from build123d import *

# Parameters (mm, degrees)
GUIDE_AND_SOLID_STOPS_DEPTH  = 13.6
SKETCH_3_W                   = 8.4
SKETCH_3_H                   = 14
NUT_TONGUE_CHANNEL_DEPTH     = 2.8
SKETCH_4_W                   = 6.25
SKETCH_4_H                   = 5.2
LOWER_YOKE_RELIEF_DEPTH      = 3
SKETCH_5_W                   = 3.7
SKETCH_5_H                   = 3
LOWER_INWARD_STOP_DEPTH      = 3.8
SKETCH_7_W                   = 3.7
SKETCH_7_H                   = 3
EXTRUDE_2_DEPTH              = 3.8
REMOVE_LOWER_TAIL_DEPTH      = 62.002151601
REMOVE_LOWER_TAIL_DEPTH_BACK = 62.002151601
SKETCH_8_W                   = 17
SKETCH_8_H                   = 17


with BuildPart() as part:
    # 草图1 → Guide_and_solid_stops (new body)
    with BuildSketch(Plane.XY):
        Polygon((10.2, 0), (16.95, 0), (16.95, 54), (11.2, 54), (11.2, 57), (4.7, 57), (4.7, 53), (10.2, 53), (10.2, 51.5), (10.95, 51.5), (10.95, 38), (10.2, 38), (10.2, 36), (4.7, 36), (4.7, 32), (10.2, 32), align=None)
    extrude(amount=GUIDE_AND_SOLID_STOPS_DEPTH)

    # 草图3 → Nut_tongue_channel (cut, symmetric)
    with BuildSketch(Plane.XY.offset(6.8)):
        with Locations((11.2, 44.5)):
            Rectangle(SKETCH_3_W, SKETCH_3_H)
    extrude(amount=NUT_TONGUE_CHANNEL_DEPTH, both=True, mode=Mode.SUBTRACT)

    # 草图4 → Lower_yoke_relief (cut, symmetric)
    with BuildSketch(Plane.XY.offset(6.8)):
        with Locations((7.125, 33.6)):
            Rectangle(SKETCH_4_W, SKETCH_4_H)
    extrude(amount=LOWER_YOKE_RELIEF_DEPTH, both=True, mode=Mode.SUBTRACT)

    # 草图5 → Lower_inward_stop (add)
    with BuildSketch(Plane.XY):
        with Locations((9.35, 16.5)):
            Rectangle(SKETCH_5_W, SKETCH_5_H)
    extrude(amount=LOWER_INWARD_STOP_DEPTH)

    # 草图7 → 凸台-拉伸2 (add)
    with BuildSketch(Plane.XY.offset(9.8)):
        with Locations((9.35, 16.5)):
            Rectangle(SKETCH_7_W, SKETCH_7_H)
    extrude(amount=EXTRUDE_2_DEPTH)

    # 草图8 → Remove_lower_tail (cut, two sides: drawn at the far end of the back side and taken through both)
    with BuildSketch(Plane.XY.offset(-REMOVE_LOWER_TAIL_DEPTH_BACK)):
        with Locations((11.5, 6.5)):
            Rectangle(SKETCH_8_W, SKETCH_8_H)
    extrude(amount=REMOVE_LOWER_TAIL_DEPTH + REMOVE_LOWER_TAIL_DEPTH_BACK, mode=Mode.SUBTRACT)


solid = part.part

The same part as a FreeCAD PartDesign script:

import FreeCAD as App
import Part
import Sketcher
from FreeCAD import Vector
Q = App.Units.Quantity


def add_polygon(sketch, points):
    """Adds a closed chain of lines whose ends are joined by coincident constraints."""
    first, n = sketch.GeometryCount, len(points)
    for a, b in zip(points, points[1:] + points[:1]):
        sketch.addGeometry(Part.LineSegment(App.Vector(*a, 0), App.Vector(*b, 0)), False)
    for i in range(n):
        sketch.addConstraint(Sketcher.Constraint("Coincident", first + i, 2, first + (i + 1) % n, 1))

doc = App.newDocument("Part")
body = doc.addObject("PartDesign::Body", "Body")

sketch1 = body.newObject("Sketcher::SketchObject", "Sketch")
sketch1.AttachmentSupport = (doc.getObject("XY_Plane"), [""])
sketch1.MapMode = "FlatFace"
add_polygon(sketch1, [(10.2, 0), (16.9, 0), (16.9, 54), (11.2, 54), (11.2, 57), (4.7, 57), (4.7, 53), (10.2, 53), (10.2, 51.5), (10.9, 51.5), (10.9, 38), (10.2, 38), (10.2, 36), (4.7, 36), (4.7, 32), (10.2, 32)])
sketch1.addConstraint(Sketcher.Constraint("Horizontal", 0))
sketch1.addConstraint(Sketcher.Constraint("Vertical", 1))
sketch1.addConstraint(Sketcher.Constraint("Horizontal", 2))
sketch1.addConstraint(Sketcher.Constraint("Vertical", 3))
sketch1.addConstraint(Sketcher.Constraint("Horizontal", 4))
sketch1.addConstraint(Sketcher.Constraint("Vertical", 5))
sketch1.addConstraint(Sketcher.Constraint("Horizontal", 6))
sketch1.addConstraint(Sketcher.Constraint("Vertical", 7))
sketch1.addConstraint(Sketcher.Constraint("Horizontal", 8))
sketch1.addConstraint(Sketcher.Constraint("Vertical", 9))
sketch1.addConstraint(Sketcher.Constraint("Horizontal", 10))
sketch1.addConstraint(Sketcher.Constraint("Vertical", 11))
sketch1.addConstraint(Sketcher.Constraint("Horizontal", 12))
sketch1.addConstraint(Sketcher.Constraint("Vertical", 13))
sketch1.addConstraint(Sketcher.Constraint("Horizontal", 14))
sketch1.addConstraint(Sketcher.Constraint("Vertical", 15))
sketch1.addConstraint(Sketcher.Constraint("PointOnObject", 0, 2, -1))
sketch1.addConstraint(Sketcher.Constraint("Vertical", 7, 2, 10, 2))
sketch1.addConstraint(Sketcher.Constraint("Vertical", 5, 2, 12, 2))
sketch1.addConstraint(Sketcher.Constraint("Vertical", 11, 2, 14, 2))
sketch1.addConstraint(Sketcher.Constraint("Equal", 5, 13))
sketch1.addConstraint(Sketcher.Constraint("DistanceY", 1, 1, 1, 2, Q("54 mm")))
sketch1.addConstraint(Sketcher.Constraint("DistanceY", 3, 1, 3, 2, Q("3 mm")))
sketch1.addConstraint(Sketcher.Constraint("DistanceY", 5, 2, 5, 1, Q("4 mm")))
sketch1.addConstraint(Sketcher.Constraint("DistanceY", 11, 2, 11, 1, Q("2 mm")))
sketch1.addConstraint(Sketcher.Constraint("DistanceY", 15, 2, 15, 1, Q("32 mm")))
sketch1.addConstraint(Sketcher.Constraint("DistanceX", 4, 2, 4, 1, Q("6.5 mm")))
sketch1.addConstraint(Sketcher.Constraint("DistanceX", 6, 1, 6, 2, Q("5.5 mm")))
sketch1.addConstraint(Sketcher.Constraint("DistanceY", 7, 2, 7, 1, Q("1.5 mm")))
sketch1.addConstraint(Sketcher.Constraint("DistanceX", 0, 1, 0, 2, Q("6.75 mm")))
sketch1.addConstraint(Sketcher.Constraint("DistanceX", 8, 1, 8, 2, Q("0.75 mm")))
sketch1.addConstraint(Sketcher.Constraint("DistanceX", -1, 1, 2, 2, Q("11.2 mm")))
pad1 = body.newObject("PartDesign::Pad", "Pad")
pad1.Profile = sketch1
pad1.Length = 13.6

sketch2 = body.newObject("Sketcher::SketchObject", "Sketch001")
sketch2.AttachmentSupport = (doc.getObject("XY_Plane"), [""])
sketch2.MapMode = "FlatFace"
sketch2.AttachmentOffset = App.Placement(Vector(0, 0, 6.8), App.Rotation())
add_polygon(sketch2, [(7, 52), (7, 38), (15, 38), (15, 52)])
sketch2.addConstraint(Sketcher.Constraint("Vertical", 0))
sketch2.addConstraint(Sketcher.Constraint("Horizontal", 1))
sketch2.addConstraint(Sketcher.Constraint("Vertical", 2))
sketch2.addConstraint(Sketcher.Constraint("Horizontal", 3))
sketch2.addConstraint(Sketcher.Constraint("DistanceY", 0, 2, 0, 1, Q("14 mm")))
sketch2.addConstraint(Sketcher.Constraint("DistanceX", 1, 1, 1, 2, Q("8.4 mm")))
sketch2.addConstraint(Sketcher.Constraint("DistanceX", -1, 1, 0, 2, Q("7 mm")))
sketch2.addConstraint(Sketcher.Constraint("DistanceY", -1, 1, 0, 2, Q("37.5 mm")))
pocket1 = body.newObject("PartDesign::Pocket", "Pocket")
pocket1.Profile = sketch2
pocket1.Length = 5.6
pocket1.Midplane = True

sketch3 = body.newObject("Sketcher::SketchObject", "Sketch002")
sketch3.AttachmentSupport = (doc.getObject("XY_Plane"), [""])
sketch3.MapMode = "FlatFace"
sketch3.AttachmentOffset = App.Placement(Vector(0, 0, 6.8), App.Rotation())
add_polygon(sketch3, [(4, 36), (4, 31), (10, 31), (10, 36)])
sketch3.addConstraint(Sketcher.Constraint("Vertical", 0))
sketch3.addConstraint(Sketcher.Constraint("Horizontal", 1))
sketch3.addConstraint(Sketcher.Constraint("Vertical", 2))
sketch3.addConstraint(Sketcher.Constraint("Horizontal", 3))
sketch3.addConstraint(Sketcher.Constraint("DistanceY", 0, 2, 0, 1, Q("5.2 mm")))
sketch3.addConstraint(Sketcher.Constraint("DistanceX", -1, 1, 0, 2, Q("4 mm")))
sketch3.addConstraint(Sketcher.Constraint("DistanceY", -1, 1, 0, 2, Q("31 mm")))
sketch3.addConstraint(Sketcher.Constraint("DistanceX", 1, 1, 1, 2, Q("6.25 mm")))
pocket2 = body.newObject("PartDesign::Pocket", "Pocket001")
pocket2.Profile = sketch3
pocket2.Length = 6
pocket2.Midplane = True

sketch4 = body.newObject("Sketcher::SketchObject", "Sketch003")
sketch4.AttachmentSupport = (doc.getObject("XY_Plane"), [""])
sketch4.MapMode = "FlatFace"
add_polygon(sketch4, [(7.5, 18), (7.5, 15), (11.2, 15), (11.2, 18)])
sketch4.addConstraint(Sketcher.Constraint("Vertical", 0))
sketch4.addConstraint(Sketcher.Constraint("Horizontal", 1))
sketch4.addConstraint(Sketcher.Constraint("Vertical", 2))
sketch4.addConstraint(Sketcher.Constraint("Horizontal", 3))
sketch4.addConstraint(Sketcher.Constraint("DistanceY", 0, 2, 0, 1, Q("3 mm")))
sketch4.addConstraint(Sketcher.Constraint("DistanceX", 1, 1, 1, 2, Q("3.7 mm")))
sketch4.addConstraint(Sketcher.Constraint("DistanceY", -1, 1, 0, 2, Q("15 mm")))
sketch4.addConstraint(Sketcher.Constraint("DistanceX", -1, 1, 0, 2, Q("7.5 mm")))
pad2 = body.newObject("PartDesign::Pad", "Pad001")
pad2.Profile = sketch4
pad2.Length = 3.8

sketch5 = body.newObject("Sketcher::SketchObject", "Sketch004")
sketch5.AttachmentSupport = (doc.getObject("XY_Plane"), [""])
sketch5.MapMode = "FlatFace"
sketch5.AttachmentOffset = App.Placement(Vector(0, 0, 9.8), App.Rotation())
add_polygon(sketch5, [(7.5, 18), (7.5, 15), (11.2, 15), (11.2, 18)])
sketch5.addConstraint(Sketcher.Constraint("Vertical", 0))
sketch5.addConstraint(Sketcher.Constraint("Horizontal", 1))
sketch5.addConstraint(Sketcher.Constraint("Vertical", 2))
sketch5.addConstraint(Sketcher.Constraint("Horizontal", 3))
sketch5.addConstraint(Sketcher.Constraint("DistanceY", 0, 2, 0, 1, Q("3 mm")))
sketch5.addConstraint(Sketcher.Constraint("DistanceX", 1, 1, 1, 2, Q("3.7 mm")))
sketch5.addConstraint(Sketcher.Constraint("DistanceY", -1, 1, 0, 2, Q("15 mm")))
sketch5.addConstraint(Sketcher.Constraint("DistanceX", -1, 1, 0, 2, Q("7.5 mm")))
pad3 = body.newObject("PartDesign::Pad", "Pad002")
pad3.Profile = sketch5
pad3.Length = 3.8

sketch6 = body.newObject("Sketcher::SketchObject", "Sketch005")
sketch6.AttachmentSupport = (doc.getObject("XY_Plane"), [""])
sketch6.MapMode = "FlatFace"
add_polygon(sketch6, [(3, 15), (3, -2), (20, -2), (20, 15)])
sketch6.addConstraint(Sketcher.Constraint("Vertical", 0))
sketch6.addConstraint(Sketcher.Constraint("Horizontal", 1))
sketch6.addConstraint(Sketcher.Constraint("Vertical", 2))
sketch6.addConstraint(Sketcher.Constraint("Horizontal", 3))
sketch6.addConstraint(Sketcher.Constraint("Equal", 3, 0))
sketch6.addConstraint(Sketcher.Constraint("DistanceX", 1, 1, 1, 2, Q("17 mm")))
sketch6.addConstraint(Sketcher.Constraint("DistanceX", -1, 1, 0, 2, Q("3 mm")))
sketch6.addConstraint(Sketcher.Constraint("DistanceY", 0, 2, -1, 1, Q("2 mm")))
pocket3 = body.newObject("PartDesign::Pocket", "Pocket002")
pocket3.Profile = sketch6
pocket3.Type = "ThroughAll"
pocket3.Midplane = True

doc.recompute()
